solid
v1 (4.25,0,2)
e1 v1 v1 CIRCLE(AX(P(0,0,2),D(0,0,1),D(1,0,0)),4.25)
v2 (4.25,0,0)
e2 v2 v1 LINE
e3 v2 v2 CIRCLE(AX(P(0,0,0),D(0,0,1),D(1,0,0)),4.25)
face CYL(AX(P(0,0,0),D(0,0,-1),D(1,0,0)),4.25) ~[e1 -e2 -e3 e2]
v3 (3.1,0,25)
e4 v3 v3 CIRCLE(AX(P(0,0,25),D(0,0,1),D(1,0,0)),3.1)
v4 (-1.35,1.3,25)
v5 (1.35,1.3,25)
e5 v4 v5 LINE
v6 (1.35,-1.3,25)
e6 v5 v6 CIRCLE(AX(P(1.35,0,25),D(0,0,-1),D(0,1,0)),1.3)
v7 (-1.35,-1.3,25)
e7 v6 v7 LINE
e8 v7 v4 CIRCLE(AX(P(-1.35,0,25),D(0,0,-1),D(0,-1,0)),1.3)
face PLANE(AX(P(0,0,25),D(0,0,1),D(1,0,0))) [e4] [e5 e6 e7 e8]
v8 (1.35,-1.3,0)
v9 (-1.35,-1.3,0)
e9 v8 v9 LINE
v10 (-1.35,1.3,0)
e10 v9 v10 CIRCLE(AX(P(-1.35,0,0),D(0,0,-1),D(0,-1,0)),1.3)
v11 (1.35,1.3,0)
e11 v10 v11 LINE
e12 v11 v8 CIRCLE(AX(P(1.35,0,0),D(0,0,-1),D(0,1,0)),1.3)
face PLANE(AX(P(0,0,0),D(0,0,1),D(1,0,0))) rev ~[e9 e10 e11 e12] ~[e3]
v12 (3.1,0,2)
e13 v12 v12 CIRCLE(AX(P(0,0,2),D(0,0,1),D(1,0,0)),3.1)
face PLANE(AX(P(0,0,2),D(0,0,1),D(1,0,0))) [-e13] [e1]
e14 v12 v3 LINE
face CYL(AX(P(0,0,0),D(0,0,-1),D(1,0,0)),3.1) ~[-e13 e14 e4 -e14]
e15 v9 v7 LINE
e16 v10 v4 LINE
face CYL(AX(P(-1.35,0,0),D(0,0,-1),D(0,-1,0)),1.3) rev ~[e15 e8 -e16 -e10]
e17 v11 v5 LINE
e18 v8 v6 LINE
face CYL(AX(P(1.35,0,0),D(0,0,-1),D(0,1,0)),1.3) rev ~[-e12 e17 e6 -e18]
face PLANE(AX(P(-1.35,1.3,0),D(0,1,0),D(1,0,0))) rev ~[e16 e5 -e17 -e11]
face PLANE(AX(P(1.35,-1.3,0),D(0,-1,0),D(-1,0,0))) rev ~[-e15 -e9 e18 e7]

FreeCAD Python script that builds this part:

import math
import FreeCAD as App
import Part
import Sketcher

V = App.Vector
Q = App.Units.Quantity

doc = App.newDocument("Part")
body = doc.addObject("PartDesign::Body", "Body")

sketch1 = body.newObject("Sketcher::SketchObject", "Sketch")
sketch1.AttachmentSupport = (doc.getObject("XY_Plane"), [""])
sketch1.MapMode = "FlatFace"
sketch1.addGeometry([
    Part.Circle(V(0, 0, 0), V(0, 0, 1), 4.2),
    Part.Circle(V(0, 0, 0), V(0, 0, 1), 3.1),
], False)
sketch1.addConstraint([
    Sketcher.Constraint("Coincident", 0, 3, -1, 1),
    Sketcher.Constraint("Coincident", 1, 3, -1, 1),
    Sketcher.Constraint("Diameter", 0, Q("8.5 mm")),
    Sketcher.Constraint("Diameter", 1, Q("6.2 mm")),
])
pad1 = body.newObject("PartDesign::Pad", "Pad")
pad1.Profile = sketch1
pad1.Length = 2

sketch2 = body.newObject("Sketcher::SketchObject", "Sketch001")
sketch2.AttachmentSupport = (doc.getObject("XY_Plane"), [""])
sketch2.MapMode = "FlatFace"
sketch2.addGeometry([
    Part.Circle(V(0, 0, 0), V(0, 0, 1), 3.1),
    Part.ArcOfCircle(Part.Circle(V(-1.4, 0, 0), V(0, 0, 1), 1.3), math.radians(90), math.radians(270)),
    Part.LineSegment(V(-1.4, 1.3, 0), V(1.4, 1.3, 0)),
    Part.ArcOfCircle(Part.Circle(V(1.4, 0, 0), V(0, 0, 1), 1.3), math.radians(-90), math.radians(90)),
    Part.LineSegment(V(1.4, -1.3, 0), V(-1.4, -1.3, 0)),
], False)
sketch2.addConstraint([
    Sketcher.Constraint("Tangent", 1, 1, 2, 1),
    Sketcher.Constraint("Tangent", 2, 2, 3, 2),
    Sketcher.Constraint("Tangent", 3, 1, 4, 1),
    Sketcher.Constraint("Tangent", 4, 2, 1, 2),
    Sketcher.Constraint("Horizontal", 2),
    Sketcher.Constraint("Horizontal", 4),
    Sketcher.Constraint("Coincident", 0, 3, -1, 1),
    Sketcher.Constraint("Symmetric", 1, 3, 3, 3, -1, 1),
    Sketcher.Constraint("Diameter", 0, Q("6.2 mm")),
    Sketcher.Constraint("Radius", 1, Q("1.3 mm")),
    Sketcher.Constraint("DistanceX", 2, 1, 2, 2, Q("2.7 mm")),
])
pad2 = body.newObject("PartDesign::Pad", "Pad001")
pad2.Profile = sketch2
pad2.Length = 25

doc.recompute()
